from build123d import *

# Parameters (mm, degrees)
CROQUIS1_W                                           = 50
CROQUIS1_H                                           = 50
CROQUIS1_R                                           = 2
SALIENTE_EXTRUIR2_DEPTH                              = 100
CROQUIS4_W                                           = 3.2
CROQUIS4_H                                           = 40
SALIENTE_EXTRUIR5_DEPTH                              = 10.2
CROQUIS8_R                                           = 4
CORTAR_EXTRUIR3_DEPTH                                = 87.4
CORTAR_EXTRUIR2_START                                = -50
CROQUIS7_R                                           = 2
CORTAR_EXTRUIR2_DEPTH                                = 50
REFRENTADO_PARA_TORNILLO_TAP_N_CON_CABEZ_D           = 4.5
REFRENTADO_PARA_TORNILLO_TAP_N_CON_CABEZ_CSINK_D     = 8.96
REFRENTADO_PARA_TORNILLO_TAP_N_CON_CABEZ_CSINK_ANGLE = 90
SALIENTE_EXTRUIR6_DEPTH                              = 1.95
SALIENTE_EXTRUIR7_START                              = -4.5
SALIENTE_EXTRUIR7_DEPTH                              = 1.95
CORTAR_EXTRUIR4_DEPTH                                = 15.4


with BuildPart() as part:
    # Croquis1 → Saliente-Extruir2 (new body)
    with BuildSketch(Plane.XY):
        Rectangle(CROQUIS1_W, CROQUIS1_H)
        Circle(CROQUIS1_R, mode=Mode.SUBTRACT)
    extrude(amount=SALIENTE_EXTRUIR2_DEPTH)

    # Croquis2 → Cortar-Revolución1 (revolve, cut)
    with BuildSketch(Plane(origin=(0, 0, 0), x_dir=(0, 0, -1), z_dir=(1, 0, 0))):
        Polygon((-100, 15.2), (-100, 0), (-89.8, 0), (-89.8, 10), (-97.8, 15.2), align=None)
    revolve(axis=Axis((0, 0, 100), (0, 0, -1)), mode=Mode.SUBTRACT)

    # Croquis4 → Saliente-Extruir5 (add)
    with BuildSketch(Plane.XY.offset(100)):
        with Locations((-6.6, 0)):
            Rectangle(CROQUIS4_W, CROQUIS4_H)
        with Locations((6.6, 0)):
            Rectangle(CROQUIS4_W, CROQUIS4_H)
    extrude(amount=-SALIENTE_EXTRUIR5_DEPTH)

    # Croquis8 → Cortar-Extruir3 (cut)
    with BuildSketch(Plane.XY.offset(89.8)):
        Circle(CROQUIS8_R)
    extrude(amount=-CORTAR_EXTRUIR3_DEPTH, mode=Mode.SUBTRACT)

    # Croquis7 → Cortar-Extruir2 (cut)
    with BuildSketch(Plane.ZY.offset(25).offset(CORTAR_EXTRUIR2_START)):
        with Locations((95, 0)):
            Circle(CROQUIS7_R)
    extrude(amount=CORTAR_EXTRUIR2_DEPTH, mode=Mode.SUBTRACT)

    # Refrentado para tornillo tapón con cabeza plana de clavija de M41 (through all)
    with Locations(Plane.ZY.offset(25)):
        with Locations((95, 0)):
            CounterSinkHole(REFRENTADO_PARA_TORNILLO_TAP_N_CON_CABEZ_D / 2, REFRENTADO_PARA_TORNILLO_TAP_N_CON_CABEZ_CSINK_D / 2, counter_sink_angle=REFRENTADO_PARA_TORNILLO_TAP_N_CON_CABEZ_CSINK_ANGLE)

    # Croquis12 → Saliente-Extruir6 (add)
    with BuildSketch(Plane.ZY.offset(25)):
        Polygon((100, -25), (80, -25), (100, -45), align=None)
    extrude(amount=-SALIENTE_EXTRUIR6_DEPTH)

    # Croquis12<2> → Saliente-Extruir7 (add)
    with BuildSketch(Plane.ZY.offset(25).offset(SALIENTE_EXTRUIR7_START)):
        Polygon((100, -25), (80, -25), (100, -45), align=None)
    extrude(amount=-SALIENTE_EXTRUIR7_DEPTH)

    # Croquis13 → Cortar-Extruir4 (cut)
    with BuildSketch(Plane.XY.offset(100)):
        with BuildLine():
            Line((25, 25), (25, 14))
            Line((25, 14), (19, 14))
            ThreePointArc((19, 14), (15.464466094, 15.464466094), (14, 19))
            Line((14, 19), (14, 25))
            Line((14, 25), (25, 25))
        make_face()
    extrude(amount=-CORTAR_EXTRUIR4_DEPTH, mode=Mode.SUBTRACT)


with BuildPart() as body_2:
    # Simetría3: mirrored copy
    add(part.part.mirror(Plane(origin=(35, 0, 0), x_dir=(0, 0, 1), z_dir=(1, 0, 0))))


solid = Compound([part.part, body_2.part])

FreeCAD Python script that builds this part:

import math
import FreeCAD as App
import Part
import Sketcher
from FreeCAD import Vector
Q = App.Units.Quantity


def add_polygon(sketch, points):
    """Adds a closed chain of lines whose ends are joined by coincident constraints."""
    first, n = sketch.GeometryCount, len(points)
    for a, b in zip(points, points[1:] + points[:1]):
        sketch.addGeometry(Part.LineSegment(App.Vector(*a, 0), App.Vector(*b, 0)), False)
    for i in range(n):
        sketch.addConstraint(Sketcher.Constraint("Coincident", first + i, 2, first + (i + 1) % n, 1))

doc = App.newDocument("Part")
body = doc.addObject("PartDesign::Body", "Body")

# Sketch on XY plane
sketch1 = doc.addObject("Sketcher::SketchObject", "Sketch")
body.addObject(sketch1)
sketch1.AttachmentSupport = (doc.XY_Plane, [""])
sketch1.MapMode = "FlatFace"
add_polygon(sketch1, [(-25, 25), (-25, -25), (25, -25), (25, 25)])  # lines 0-3
sketch1.addGeometry(Part.Circle(Vector(0, 0, 0), Vector(0, 0, 1), 2), False)  # 4
sketch1.addConstraint(Sketcher.Constraint("Vertical", 0))
sketch1.addConstraint(Sketcher.Constraint("Horizontal", 1))
sketch1.addConstraint(Sketcher.Constraint("Vertical", 2))
sketch1.addConstraint(Sketcher.Constraint("Horizontal", 3))
sketch1.addConstraint(Sketcher.Constraint("Coincident", 4, 3, -1, 1))
sketch1.addConstraint(Sketcher.Constraint("Symmetric", 0, 2, 2, 2, -1, 1))
sketch1.addConstraint(Sketcher.Constraint("Equal", 3, 0))
sketch1.addConstraint(Sketcher.Constraint("Diameter", 4, Q("4 mm")))
sketch1.addConstraint(Sketcher.Constraint("DistanceX", 1, 1, 1, 2, Q("50 mm")))
pad1 = doc.addObject("PartDesign::Pad", "Pad")
body.addObject(pad1)
pad1.Profile = sketch1
pad1.Length = 100

# Sketch on YZ plane
sketch2 = doc.addObject("Sketcher::SketchObject", "Sketch001")
body.addObject(sketch2)
sketch2.AttachmentSupport = (doc.YZ_Plane, [""])
sketch2.MapMode = "FlatFace"
add_polygon(sketch2, [(15.2, 100), (0, 100), (0, 89.8), (10, 89.8), (15.2, 97.8)])  # lines 0-4
sketch2.addConstraint(Sketcher.Constraint("Horizontal", 0))
sketch2.addConstraint(Sketcher.Constraint("Vertical", 1))
sketch2.addConstraint(Sketcher.Constraint("Horizontal", 2))
sketch2.addConstraint(Sketcher.Constraint("Vertical", 4))
sketch2.addConstraint(Sketcher.Constraint("PointOnObject", 0, 2, -2))
sketch2.addConstraint(Sketcher.Constraint("DistanceX", 2, 1, 2, 2, Q("10 mm")))
sketch2.addConstraint(Sketcher.Constraint("DistanceX", 0, 2, 0, 1, Q("15.2 mm")))
sketch2.addConstraint(Sketcher.Constraint("DistanceY", 1, 2, 1, 1, Q("10.2 mm")))
sketch2.addConstraint(Sketcher.Constraint("DistanceY", 4, 1, 4, 2, Q("2.2 mm")))
sketch2.addConstraint(Sketcher.Constraint("DistanceY", -1, 1, 0, 2, Q("100 mm")))
groove = doc.addObject("PartDesign::Groove", "Groove")
body.addObject(groove)
groove.Profile = sketch2
groove.ReferenceAxis = (sketch2, ["V_Axis"])
groove.Angle = 360

# Sketch on XY plane
sketch3 = doc.addObject("Sketcher::SketchObject", "Sketch002")
body.addObject(sketch3)
sketch3.AttachmentSupport = (doc.XY_Plane, [""])
sketch3.MapMode = "FlatFace"
sketch3.AttachmentOffset = App.Placement(Vector(0, 0, 100), App.Rotation())
add_polygon(sketch3, [(-8.2, 20), (-8.2, -20), (-5, -20), (-5, 20)])  # lines 0-3
add_polygon(sketch3, [(5, 20), (5, -20), (8.2, -20), (8.2, 20)])  # lines 4-7
sketch3.addConstraint(Sketcher.Constraint("Vertical", 0))
sketch3.addConstraint(Sketcher.Constraint("Horizontal", 1))
sketch3.addConstraint(Sketcher.Constraint("Vertical", 2))
sketch3.addConstraint(Sketcher.Constraint("Horizontal", 3))
sketch3.addConstraint(Sketcher.Constraint("Vertical", 4))
sketch3.addConstraint(Sketcher.Constraint("Horizontal", 5))
sketch3.addConstraint(Sketcher.Constraint("Vertical", 6))
sketch3.addConstraint(Sketcher.Constraint("Horizontal", 7))
sketch3.addConstraint(Sketcher.Constraint("Symmetric", 2, 2, 4, 2, -1, 1))
sketch3.addConstraint(Sketcher.Constraint("Symmetric", 0, 2, 6, 2, -1, 1))
sketch3.addConstraint(Sketcher.Constraint("Horizontal", 1, 2, 4, 2))
sketch3.addConstraint(Sketcher.Constraint("DistanceY", 0, 2, 0, 1, Q("40 mm")))
sketch3.addConstraint(Sketcher.Constraint("DistanceX", 1, 1, 1, 2, Q("3.2 mm")))
sketch3.addConstraint(Sketcher.Constraint("DistanceX", 1, 2, -1, 1, Q("5 mm")))
pad2 = doc.addObject("PartDesign::Pad", "Pad001")
body.addObject(pad2)
pad2.Profile = sketch3
pad2.Length = 10.2
pad2.Reversed = True

# Sketch on XY plane
sketch4 = doc.addObject("Sketcher::SketchObject", "Sketch003")
body.addObject(sketch4)
sketch4.AttachmentSupport = (doc.XY_Plane, [""])
sketch4.MapMode = "FlatFace"
sketch4.AttachmentOffset = App.Placement(Vector(0, 0, 89.8), App.Rotation())
sketch4.addGeometry(Part.Circle(Vector(0, 0, 0), Vector(0, 0, 1), 4), False)
sketch4.addConstraint(Sketcher.Constraint("Coincident", 0, 3, -1, 1))
sketch4.addConstraint(Sketcher.Constraint("Diameter", 0, Q("8 mm")))
pocket1 = doc.addObject("PartDesign::Pocket", "Pocket")
body.addObject(pocket1)
pocket1.Profile = sketch4
pocket1.Length = 87.4

# Sketch on YZ plane
sketch5 = doc.addObject("Sketcher::SketchObject", "Sketch004")
body.addObject(sketch5)
sketch5.AttachmentSupport = (doc.YZ_Plane, [""])
sketch5.MapMode = "FlatFace"
sketch5.AttachmentOffset = App.Placement(Vector(0, 0, 25), App.Rotation())
sketch5.addGeometry(Part.Circle(Vector(0, 95, 0), Vector(0, 0, 1), 2), False)
sketch5.addConstraint(Sketcher.Constraint("PointOnObject", 0, 3, -2))
sketch5.addConstraint(Sketcher.Constraint("Diameter", 0, Q("4 mm")))
sketch5.addConstraint(Sketcher.Constraint("DistanceY", -1, 1, 0, 3, Q("95 mm")))
pocket2 = doc.addObject("PartDesign::Pocket", "Pocket001")
body.addObject(pocket2)
pocket2.Profile = sketch5
pocket2.Length = 50

# Sketch on YZ plane
sketch6 = doc.addObject("Sketcher::SketchObject", "Sketch005")
body.addObject(sketch6)
sketch6.AttachmentSupport = (doc.YZ_Plane, [""])
sketch6.MapMode = "FlatFace"
sketch6.AttachmentOffset = App.Placement(Vector(0, 0, -25), App.Rotation())
sketch6.addGeometry(Part.Circle(Vector(0, 95, 0), Vector(0, 0, 1), 2.2), False)
sketch6.addConstraint(Sketcher.Constraint("PointOnObject", 0, 3, -2))
sketch6.addConstraint(Sketcher.Constraint("Diameter", 0, Q("4.5 mm")))
sketch6.addConstraint(Sketcher.Constraint("DistanceY", -1, 1, 0, 3, Q("95 mm")))
doc.recompute()
hole = doc.addObject("PartDesign::Hole", "Hole")
body.addObject(hole)
hole.Profile = sketch6
hole.ThreadType = "None"
hole.Diameter = 4.5
hole.DepthType = "ThroughAll"
hole.HoleCutType = "Countersink"
hole.HoleCutDiameter = 8.96
hole.HoleCutCountersinkAngle = 90
hole.Reversed = True

# Sketch on YZ plane
sketch7 = doc.addObject("Sketcher::SketchObject", "Sketch006")
body.addObject(sketch7)
sketch7.AttachmentSupport = (doc.YZ_Plane, [""])
sketch7.MapMode = "FlatFace"
sketch7.AttachmentOffset = App.Placement(Vector(0, 0, -25), App.Rotation())
add_polygon(sketch7, [(-25, 100), (-25, 80), (-45, 100)])  # lines 0-2
sketch7.addConstraint(Sketcher.Constraint("Vertical", 0))
sketch7.addConstraint(Sketcher.Constraint("Horizontal", 2))
sketch7.addConstraint(Sketcher.Constraint("Equal", 2, 0))
sketch7.addConstraint(Sketcher.Constraint("DistanceX", 2, 1, 2, 2, Q("20 mm")))
sketch7.addConstraint(Sketcher.Constraint("DistanceX", 0, 2, -1, 1, Q("25 mm")))
sketch7.addConstraint(Sketcher.Constraint("DistanceY", -1, 1, 0, 2, Q("80 mm")))
pad3 = doc.addObject("PartDesign::Pad", "Pad002")
body.addObject(pad3)
pad3.Profile = sketch7
pad3.Length = 1.95

# Sketch on YZ plane
sketch8 = doc.addObject("Sketcher::SketchObject", "Sketch007")
body.addObject(sketch8)
sketch8.AttachmentSupport = (doc.YZ_Plane, [""])
sketch8.MapMode = "FlatFace"
sketch8.AttachmentOffset = App.Placement(Vector(0, 0, -20.5), App.Rotation())
add_polygon(sketch8, [(-25, 100), (-25, 80), (-45, 100)])  # lines 0-2
sketch8.addConstraint(Sketcher.Constraint("Vertical", 0))
sketch8.addConstraint(Sketcher.Constraint("Horizontal", 2))
sketch8.addConstraint(Sketcher.Constraint("Equal", 2, 0))
sketch8.addConstraint(Sketcher.Constraint("DistanceX", 2, 1, 2, 2, Q("20 mm")))
sketch8.addConstraint(Sketcher.Constraint("DistanceX", 0, 2, -1, 1, Q("25 mm")))
sketch8.addConstraint(Sketcher.Constraint("DistanceY", -1, 1, 0, 2, Q("80 mm")))
pad4 = doc.addObject("PartDesign::Pad", "Pad003")
body.addObject(pad4)
pad4.Profile = sketch8
pad4.Length = 1.95

# Sketch on XY plane
sketch9 = doc.addObject("Sketcher::SketchObject", "Sketch008")
body.addObject(sketch9)
sketch9.AttachmentSupport = (doc.XY_Plane, [""])
sketch9.MapMode = "FlatFace"
sketch9.AttachmentOffset = App.Placement(Vector(0, 0, 100), App.Rotation())
sketch9.addGeometry(Part.LineSegment(Vector(25, 14, 0), Vector(25, 25, 0)), False)
sketch9.addGeometry(Part.LineSegment(Vector(25, 25, 0), Vector(14, 25, 0)), False)
sketch9.addGeometry(Part.LineSegment(Vector(14, 25, 0), Vector(14, 19, 0)), False)
sketch9.addGeometry(Part.ArcOfCircle(Part.Circle(Vector(19, 19, 0), Vector(0, 0, 1), 5), math.radians(180), math.radians(270)), False)
sketch9.addGeometry(Part.LineSegment(Vector(19, 14, 0), Vector(25, 14, 0)), False)
sketch9.addConstraint(Sketcher.Constraint("Coincident", 0, 2, 1, 1))
sketch9.addConstraint(Sketcher.Constraint("Coincident", 1, 2, 2, 1))
sketch9.addConstraint(Sketcher.Constraint("Tangent", 2, 2, 3, 1))
sketch9.addConstraint(Sketcher.Constraint("Tangent", 3, 2, 4, 1))
sketch9.addConstraint(Sketcher.Constraint("Coincident", 4, 2, 0, 1))
sketch9.addConstraint(Sketcher.Constraint("Vertical", 0))
sketch9.addConstraint(Sketcher.Constraint("Horizontal", 1))
sketch9.addConstraint(Sketcher.Constraint("Vertical", 2))
sketch9.addConstraint(Sketcher.Constraint("Horizontal", 4))
sketch9.addConstraint(Sketcher.Constraint("Equal", 1, 0))
sketch9.addConstraint(Sketcher.Constraint("Radius", 3, Q("5 mm")))
sketch9.addConstraint(Sketcher.Constraint("DistanceX", 1, 2, 1, 1, Q("11 mm")))
sketch9.addConstraint(Sketcher.Constraint("DistanceX", -1, 1, 3, 3, Q("19 mm")))
sketch9.addConstraint(Sketcher.Constraint("DistanceY", -1, 1, 3, 3, Q("19 mm")))
pocket3 = doc.addObject("PartDesign::Pocket", "Pocket002")
body.addObject(pocket3)
pocket3.Profile = sketch9
pocket3.Length = 15.4
body2 = doc.addObject("PartDesign::Body", "Body001")
doc.recompute()

mirroring = doc.addObject("Part::Mirroring", "Mirroring")
mirroring.Source = body
mirroring.Base = Vector(35, 0, 0)
mirroring.Normal = Vector(1, 0, 0)
body2.BaseFeature = mirroring
doc.recompute()
mirroring.Visibility = False

doc.recompute()
